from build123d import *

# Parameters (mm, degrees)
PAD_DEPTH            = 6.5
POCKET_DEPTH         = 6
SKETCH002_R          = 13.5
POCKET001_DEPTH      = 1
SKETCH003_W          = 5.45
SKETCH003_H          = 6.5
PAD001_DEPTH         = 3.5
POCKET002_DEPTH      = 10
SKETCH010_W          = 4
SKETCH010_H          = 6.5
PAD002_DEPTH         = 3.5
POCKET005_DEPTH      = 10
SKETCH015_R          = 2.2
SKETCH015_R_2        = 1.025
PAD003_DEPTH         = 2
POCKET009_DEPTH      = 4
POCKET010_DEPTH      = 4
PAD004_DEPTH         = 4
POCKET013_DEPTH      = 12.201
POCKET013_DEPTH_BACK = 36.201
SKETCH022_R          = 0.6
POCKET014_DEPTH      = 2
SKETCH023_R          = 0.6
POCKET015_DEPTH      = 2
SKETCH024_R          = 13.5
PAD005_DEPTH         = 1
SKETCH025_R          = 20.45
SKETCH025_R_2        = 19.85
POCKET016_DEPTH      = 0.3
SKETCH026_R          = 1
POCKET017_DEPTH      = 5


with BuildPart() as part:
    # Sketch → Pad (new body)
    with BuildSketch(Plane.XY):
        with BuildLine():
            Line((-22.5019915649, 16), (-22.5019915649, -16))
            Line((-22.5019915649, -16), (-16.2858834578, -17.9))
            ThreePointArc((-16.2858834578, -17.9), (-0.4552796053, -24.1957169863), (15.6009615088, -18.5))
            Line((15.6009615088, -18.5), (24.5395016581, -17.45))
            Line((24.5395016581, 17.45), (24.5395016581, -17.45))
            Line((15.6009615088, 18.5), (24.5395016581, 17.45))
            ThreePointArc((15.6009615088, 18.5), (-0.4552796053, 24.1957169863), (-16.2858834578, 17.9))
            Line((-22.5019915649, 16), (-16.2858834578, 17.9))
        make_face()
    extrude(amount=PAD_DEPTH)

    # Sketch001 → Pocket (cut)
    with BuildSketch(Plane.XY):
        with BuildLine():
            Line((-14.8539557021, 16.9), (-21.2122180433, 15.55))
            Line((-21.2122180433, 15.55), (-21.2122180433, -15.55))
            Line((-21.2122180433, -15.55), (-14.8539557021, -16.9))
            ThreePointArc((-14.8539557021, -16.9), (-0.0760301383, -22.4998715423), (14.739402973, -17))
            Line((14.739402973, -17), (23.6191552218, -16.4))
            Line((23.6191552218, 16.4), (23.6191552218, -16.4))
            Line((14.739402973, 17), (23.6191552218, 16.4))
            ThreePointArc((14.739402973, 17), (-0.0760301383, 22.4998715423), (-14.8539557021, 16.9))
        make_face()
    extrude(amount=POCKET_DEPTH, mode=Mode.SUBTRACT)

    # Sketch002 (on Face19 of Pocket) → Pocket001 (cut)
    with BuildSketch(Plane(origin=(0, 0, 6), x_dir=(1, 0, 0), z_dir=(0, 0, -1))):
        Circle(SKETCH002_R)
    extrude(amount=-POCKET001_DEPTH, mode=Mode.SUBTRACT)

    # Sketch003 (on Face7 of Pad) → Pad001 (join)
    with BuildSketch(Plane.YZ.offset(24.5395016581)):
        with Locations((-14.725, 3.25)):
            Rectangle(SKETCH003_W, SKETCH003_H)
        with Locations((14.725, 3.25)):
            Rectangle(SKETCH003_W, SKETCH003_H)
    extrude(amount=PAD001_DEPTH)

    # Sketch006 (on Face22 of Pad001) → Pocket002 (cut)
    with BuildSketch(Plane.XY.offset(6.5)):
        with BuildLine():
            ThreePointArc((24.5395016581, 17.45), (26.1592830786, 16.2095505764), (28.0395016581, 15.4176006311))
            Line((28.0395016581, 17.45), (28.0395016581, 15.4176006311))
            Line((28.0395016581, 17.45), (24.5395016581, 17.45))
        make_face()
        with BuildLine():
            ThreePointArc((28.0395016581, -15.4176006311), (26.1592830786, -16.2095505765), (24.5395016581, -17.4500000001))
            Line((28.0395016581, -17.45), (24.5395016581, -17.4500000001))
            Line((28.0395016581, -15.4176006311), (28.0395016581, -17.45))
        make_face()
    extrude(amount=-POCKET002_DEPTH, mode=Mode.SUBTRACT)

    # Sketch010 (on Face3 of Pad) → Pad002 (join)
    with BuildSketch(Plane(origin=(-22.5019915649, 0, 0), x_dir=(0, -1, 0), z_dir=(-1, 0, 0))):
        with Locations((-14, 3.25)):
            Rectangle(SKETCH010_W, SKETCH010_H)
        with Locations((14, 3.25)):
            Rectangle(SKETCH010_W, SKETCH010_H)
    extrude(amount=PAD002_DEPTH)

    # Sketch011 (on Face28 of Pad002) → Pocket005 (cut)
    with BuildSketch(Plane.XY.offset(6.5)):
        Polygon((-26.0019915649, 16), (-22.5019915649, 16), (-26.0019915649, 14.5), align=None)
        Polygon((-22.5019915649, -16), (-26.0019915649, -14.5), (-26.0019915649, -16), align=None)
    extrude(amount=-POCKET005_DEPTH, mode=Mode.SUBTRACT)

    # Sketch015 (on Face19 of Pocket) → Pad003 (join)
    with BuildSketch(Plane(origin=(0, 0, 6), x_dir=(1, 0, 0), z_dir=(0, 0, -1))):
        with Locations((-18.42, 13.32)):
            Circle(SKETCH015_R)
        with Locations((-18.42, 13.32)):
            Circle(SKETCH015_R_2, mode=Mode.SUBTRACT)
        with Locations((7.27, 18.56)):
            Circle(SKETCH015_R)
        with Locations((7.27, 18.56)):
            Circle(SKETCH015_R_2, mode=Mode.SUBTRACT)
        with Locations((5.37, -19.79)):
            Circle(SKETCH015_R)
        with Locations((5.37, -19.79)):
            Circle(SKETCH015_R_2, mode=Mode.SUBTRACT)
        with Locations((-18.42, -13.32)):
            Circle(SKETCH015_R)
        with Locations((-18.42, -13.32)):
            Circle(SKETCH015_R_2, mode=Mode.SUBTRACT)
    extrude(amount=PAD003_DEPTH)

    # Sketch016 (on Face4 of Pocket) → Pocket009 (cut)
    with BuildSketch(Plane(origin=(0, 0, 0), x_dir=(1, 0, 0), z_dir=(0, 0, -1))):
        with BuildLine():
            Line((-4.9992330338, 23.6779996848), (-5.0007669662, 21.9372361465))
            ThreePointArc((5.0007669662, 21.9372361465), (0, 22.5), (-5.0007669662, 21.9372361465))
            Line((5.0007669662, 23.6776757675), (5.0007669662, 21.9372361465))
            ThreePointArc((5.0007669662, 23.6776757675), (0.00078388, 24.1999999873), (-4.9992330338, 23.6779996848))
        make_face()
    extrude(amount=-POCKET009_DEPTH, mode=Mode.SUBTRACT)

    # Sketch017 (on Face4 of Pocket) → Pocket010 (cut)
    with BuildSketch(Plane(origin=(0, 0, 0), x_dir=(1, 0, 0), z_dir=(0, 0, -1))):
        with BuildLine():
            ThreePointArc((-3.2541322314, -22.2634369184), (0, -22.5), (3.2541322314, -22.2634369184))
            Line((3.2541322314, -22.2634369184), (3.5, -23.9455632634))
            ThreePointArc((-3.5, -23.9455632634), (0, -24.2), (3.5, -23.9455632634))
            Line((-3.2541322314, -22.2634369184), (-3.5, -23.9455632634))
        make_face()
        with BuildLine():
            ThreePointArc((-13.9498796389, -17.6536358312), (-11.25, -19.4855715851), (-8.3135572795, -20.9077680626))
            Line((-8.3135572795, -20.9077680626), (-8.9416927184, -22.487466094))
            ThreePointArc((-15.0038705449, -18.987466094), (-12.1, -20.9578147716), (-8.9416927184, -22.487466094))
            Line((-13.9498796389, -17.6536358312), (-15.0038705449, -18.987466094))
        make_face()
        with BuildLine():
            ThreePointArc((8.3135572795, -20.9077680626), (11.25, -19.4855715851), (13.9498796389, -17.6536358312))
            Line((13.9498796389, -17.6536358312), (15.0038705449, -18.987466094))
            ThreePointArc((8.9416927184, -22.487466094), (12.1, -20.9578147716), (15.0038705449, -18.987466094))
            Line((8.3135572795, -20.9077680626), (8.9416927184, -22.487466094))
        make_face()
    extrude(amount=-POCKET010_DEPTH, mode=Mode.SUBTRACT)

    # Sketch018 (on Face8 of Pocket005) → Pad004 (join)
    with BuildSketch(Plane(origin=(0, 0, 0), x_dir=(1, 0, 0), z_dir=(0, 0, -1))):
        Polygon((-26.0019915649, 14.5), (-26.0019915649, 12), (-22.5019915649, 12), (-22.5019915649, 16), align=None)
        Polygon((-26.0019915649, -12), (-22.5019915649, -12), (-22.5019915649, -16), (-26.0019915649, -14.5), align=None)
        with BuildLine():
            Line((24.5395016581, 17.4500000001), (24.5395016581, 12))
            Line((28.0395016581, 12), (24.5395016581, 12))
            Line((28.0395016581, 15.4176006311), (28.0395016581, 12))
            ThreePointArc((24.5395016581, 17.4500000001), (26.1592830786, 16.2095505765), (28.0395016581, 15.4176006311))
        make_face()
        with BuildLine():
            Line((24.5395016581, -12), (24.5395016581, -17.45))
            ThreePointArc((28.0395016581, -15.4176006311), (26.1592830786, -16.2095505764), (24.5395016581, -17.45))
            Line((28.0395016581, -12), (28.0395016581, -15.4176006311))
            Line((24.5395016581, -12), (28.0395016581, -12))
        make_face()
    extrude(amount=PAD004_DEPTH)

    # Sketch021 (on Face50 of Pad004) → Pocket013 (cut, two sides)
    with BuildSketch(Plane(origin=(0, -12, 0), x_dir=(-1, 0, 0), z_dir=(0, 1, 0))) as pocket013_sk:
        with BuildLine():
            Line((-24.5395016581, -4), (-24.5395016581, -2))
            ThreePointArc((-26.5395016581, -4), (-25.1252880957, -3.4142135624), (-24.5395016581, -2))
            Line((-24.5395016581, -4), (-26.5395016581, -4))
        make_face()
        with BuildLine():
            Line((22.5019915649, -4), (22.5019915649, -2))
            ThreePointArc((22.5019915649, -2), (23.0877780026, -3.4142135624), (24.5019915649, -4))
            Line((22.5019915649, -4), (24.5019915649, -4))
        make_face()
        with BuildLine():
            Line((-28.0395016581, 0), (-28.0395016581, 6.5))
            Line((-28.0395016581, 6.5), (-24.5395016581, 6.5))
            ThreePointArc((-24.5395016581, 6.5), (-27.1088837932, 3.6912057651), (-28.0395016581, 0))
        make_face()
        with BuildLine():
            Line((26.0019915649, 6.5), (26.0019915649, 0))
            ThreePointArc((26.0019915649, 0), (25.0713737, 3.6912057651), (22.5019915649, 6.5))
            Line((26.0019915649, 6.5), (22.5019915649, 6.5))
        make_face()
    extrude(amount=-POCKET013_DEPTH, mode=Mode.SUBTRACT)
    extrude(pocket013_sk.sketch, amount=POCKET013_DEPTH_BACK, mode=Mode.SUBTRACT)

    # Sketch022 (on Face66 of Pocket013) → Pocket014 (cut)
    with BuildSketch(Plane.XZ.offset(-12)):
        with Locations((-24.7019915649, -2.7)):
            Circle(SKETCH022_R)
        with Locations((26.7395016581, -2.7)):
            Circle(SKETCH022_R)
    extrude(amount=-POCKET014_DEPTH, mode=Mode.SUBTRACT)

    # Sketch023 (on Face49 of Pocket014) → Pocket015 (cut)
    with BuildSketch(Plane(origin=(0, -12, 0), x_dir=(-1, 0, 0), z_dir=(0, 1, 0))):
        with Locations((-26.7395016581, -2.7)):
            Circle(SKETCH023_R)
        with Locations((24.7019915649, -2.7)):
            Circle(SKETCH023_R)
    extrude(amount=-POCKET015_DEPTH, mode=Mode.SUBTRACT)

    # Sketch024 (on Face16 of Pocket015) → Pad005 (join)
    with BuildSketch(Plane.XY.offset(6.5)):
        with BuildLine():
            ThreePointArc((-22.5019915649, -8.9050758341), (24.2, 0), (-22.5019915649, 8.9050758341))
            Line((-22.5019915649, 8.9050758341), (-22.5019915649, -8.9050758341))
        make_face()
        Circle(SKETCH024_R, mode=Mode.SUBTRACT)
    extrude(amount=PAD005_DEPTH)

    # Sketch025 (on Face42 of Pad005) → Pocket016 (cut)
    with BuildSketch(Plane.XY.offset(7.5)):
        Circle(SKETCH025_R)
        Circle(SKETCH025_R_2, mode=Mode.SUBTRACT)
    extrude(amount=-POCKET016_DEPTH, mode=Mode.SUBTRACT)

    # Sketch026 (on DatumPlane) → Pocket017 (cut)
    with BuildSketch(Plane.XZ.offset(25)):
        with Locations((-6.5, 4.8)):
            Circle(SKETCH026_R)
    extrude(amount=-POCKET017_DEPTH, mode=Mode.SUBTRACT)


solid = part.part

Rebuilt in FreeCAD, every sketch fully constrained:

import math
import FreeCAD as App
import Part
import Sketcher
from FreeCAD import Vector


def add_polygon(sketch, points):
    """Adds a closed chain of lines whose ends are joined by coincident constraints."""
    first, n = sketch.GeometryCount, len(points)
    for a, b in zip(points, points[1:] + points[:1]):
        sketch.addGeometry(Part.LineSegment(App.Vector(*a, 0), App.Vector(*b, 0)), False)
    for i in range(n):
        sketch.addConstraint(Sketcher.Constraint("Coincident", first + i, 2, first + (i + 1) % n, 1))

doc = App.newDocument("Part")
body = doc.addObject("PartDesign::Body", "Body")

# Sketch on XY plane
sketch1 = body.newObject("Sketcher::SketchObject", "Sketch")
sketch1.AttachmentSupport = (doc.getObject("XY_Plane"), [""])
sketch1.MapMode = "FlatFace"
sketch1.addGeometry([
    Part.LineSegment(Vector(-22.501992, 16, 0), Vector(-22.501992, -16, 0)),  # 0
    Part.LineSegment(Vector(-22.501992, -16, 0), Vector(-16.285883, -17.9, 0)),  # 1
    Part.ArcOfCircle(Part.Circle(Vector(0, 0, 0), Vector(0, 0, 1), 24.2), math.radians(-132.296737), math.radians(-49.859225)),  # 2
    Part.LineSegment(Vector(15.600962, -18.5, 0), Vector(24.539502, -17.45, 0)),  # 3
    Part.LineSegment(Vector(24.539502, -17.45, 0), Vector(24.539502, 17.45, 0)),  # 4
    Part.LineSegment(Vector(24.539502, 17.45, 0), Vector(15.600962, 18.5, 0)),  # 5
    Part.ArcOfCircle(Part.Circle(Vector(0, 0, 0), Vector(0, 0, 1), 24.2), math.radians(49.859225), math.radians(132.296737)),  # 6
    Part.LineSegment(Vector(-16.285883, 17.9, 0), Vector(-22.501992, 16, 0)),  # 7
], False)
sketch1.addConstraint([
    Sketcher.Constraint("Coincident", 0, 2, 1, 1),
    Sketcher.Constraint("Coincident", 1, 2, 2, 1),
    Sketcher.Constraint("Coincident", 2, 2, 3, 1),
    Sketcher.Constraint("Coincident", 3, 2, 4, 1),
    Sketcher.Constraint("Coincident", 4, 2, 5, 1),
    Sketcher.Constraint("Coincident", 5, 2, 6, 1),
    Sketcher.Constraint("Coincident", 6, 2, 7, 1),
    Sketcher.Constraint("Coincident", 7, 2, 0, 1),
    Sketcher.Constraint("Vertical", 0),
    Sketcher.Constraint("Vertical", 4),
    Sketcher.Constraint("Coincident", 2, 3, -1, 1),
    Sketcher.Constraint("Coincident", 6, 3, -1, 1),
    Sketcher.Constraint("Equal", 2, 6),
    Sketcher.Constraint("Vertical", 2, 2, 5, 2),
    Sketcher.Constraint("Vertical", 1, 2, 6, 2),
    Sketcher.Constraint("Equal", 3, 5),
    Sketcher.Constraint("Equal", 1, 7),
    Sketcher.Constraint("Radius", 2, 24.2),
    Sketcher.Constraint("DistanceY", 0, 2, 0, 1, 32.0),
    Sketcher.Constraint("Distance", 3, 9.0),
    Sketcher.Constraint("DistanceY", 4, 1, 4, 2, 34.9),
    Sketcher.Constraint("DistanceY", 2, 2, 5, 2, 37.0),
    Sketcher.Constraint("Distance", 1, 6.5),
    Sketcher.Constraint("DistanceY", 1, 2, -1, 1, 17.9),
])
pad1 = body.newObject("PartDesign::Pad", "Pad")
pad1.Profile = sketch1
pad1.Length = 6.5

# Sketch on XY plane
sketch2 = body.newObject("Sketcher::SketchObject", "Sketch001")
sketch2.AttachmentSupport = (doc.getObject("XY_Plane"), [""])
sketch2.MapMode = "FlatFace"
sketch2.addGeometry([
    Part.LineSegment(Vector(-14.853956, 16.9, 0), Vector(-21.212218, 15.55, 0)),  # 0
    Part.LineSegment(Vector(-21.212218, 15.55, 0), Vector(-21.212218, -15.55, 0)),  # 1
    Part.LineSegment(Vector(-21.212218, -15.55, 0), Vector(-14.853956, -16.9, 0)),  # 2
    Part.ArcOfCircle(Part.Circle(Vector(0, 0, 0), Vector(0, 0, 1), 22.5), math.radians(-131.313282), math.radians(-49.073937)),  # 3
    Part.LineSegment(Vector(14.739403, -17, 0), Vector(23.619155, -16.4, 0)),  # 4
    Part.LineSegment(Vector(23.619155, -16.4, 0), Vector(23.619155, 16.4, 0)),  # 5
    Part.LineSegment(Vector(23.619155, 16.4, 0), Vector(14.739403, 17, 0)),  # 6
    Part.ArcOfCircle(Part.Circle(Vector(0, 0, 0), Vector(0, 0, 1), 22.5), math.radians(49.073937), math.radians(131.313282)),  # 7
], False)
sketch2.addConstraint([
    Sketcher.Constraint("Coincident", 0, 2, 1, 1),
    Sketcher.Constraint("Coincident", 1, 2, 2, 1),
    Sketcher.Constraint("Coincident", 2, 2, 3, 1),
    Sketcher.Constraint("Coincident", 3, 2, 4, 1),
    Sketcher.Constraint("Coincident", 4, 2, 5, 1),
    Sketcher.Constraint("Coincident", 5, 2, 6, 1),
    Sketcher.Constraint("Coincident", 6, 2, 7, 1),
    Sketcher.Constraint("Coincident", 7, 2, 0, 1),
    Sketcher.Constraint("Vertical", 1),
    Sketcher.Constraint("Vertical", 5),
    Sketcher.Constraint("Coincident", 3, 3, -1, 1),
    Sketcher.Constraint("Coincident", 7, 3, -1, 1),
    Sketcher.Constraint("Equal", 3, 7),
    Sketcher.Constraint("Vertical", 3, 2, 6, 2),
    Sketcher.Constraint("Vertical", 2, 2, 7, 2),
    Sketcher.Constraint("Equal", 0, 2),
    Sketcher.Constraint("Equal", 4, 6),
    Sketcher.Constraint("Radius", 3, 22.5),
    Sketcher.Constraint("DistanceY", 1, 2, 1, 1, 31.1),
    Sketcher.Constraint("DistanceY", 5, 1, 5, 2, 32.8),
    Sketcher.Constraint("DistanceY", 3, 2, -1, 1, 17.0),
    Sketcher.Constraint("Distance", 0, 6.5),
    Sketcher.Constraint("Distance", 4, 8.9),
    Sketcher.Constraint("DistanceY", 2, 2, -1, 1, 16.9),
])
pocket1 = body.newObject("PartDesign::Pocket", "Pocket")
pocket1.Profile = sketch2
pocket1.Length = 6
pocket1.Reversed = True

# Sketch on XY plane
sketch3 = body.newObject("Sketcher::SketchObject", "Sketch002")
sketch3.AttachmentSupport = (doc.getObject("XY_Plane"), [""])
sketch3.MapMode = "FlatFace"
sketch3.AttachmentOffset = App.Placement(Vector(0, 0, 6), App.Rotation())
sketch3.addGeometry(Part.Circle(Vector(0, 0, 0), Vector(0, 0, 1), 13.5), False)
sketch3.addConstraint([
    Sketcher.Constraint("Coincident", 0, 3, -1, 1),
    Sketcher.Constraint("Diameter", 0, 27.0),
])
pocket2 = body.newObject("PartDesign::Pocket", "Pocket001")
pocket2.Profile = sketch3
pocket2.Length = 1
pocket2.Reversed = True

# Sketch on YZ plane
sketch4 = body.newObject("Sketcher::SketchObject", "Sketch003")
sketch4.AttachmentSupport = (doc.getObject("YZ_Plane"), [""])
sketch4.MapMode = "FlatFace"
sketch4.AttachmentOffset = App.Placement(Vector(0, 0, 24.539502), App.Rotation())
add_polygon(sketch4, [(-17.45, 6.5), (-17.45, 0), (-12, 0), (-12, 6.5)])  # lines 0-3
add_polygon(sketch4, [(12, 6.5), (12, 0), (17.45, 0), (17.45, 6.5)])  # lines 4-7
sketch4.addConstraint([
    Sketcher.Constraint("Vertical", 0),
    Sketcher.Constraint("Horizontal", 1),
    Sketcher.Constraint("Vertical", 2),
    Sketcher.Constraint("Horizontal", 3),
    Sketcher.Constraint("Vertical", 4),
    Sketcher.Constraint("Horizontal", 5),
    Sketcher.Constraint("Vertical", 6),
    Sketcher.Constraint("Horizontal", 7),
    Sketcher.Constraint("Symmetric", 1, 2, 4, 2, -1, 1),
    Sketcher.Constraint("Symmetric", 0, 2, 5, 2, -2),
    Sketcher.Constraint("Horizontal", 3, 2, 6, 2),
    Sketcher.Constraint("DistanceY", 0, 2, 0, 1, 6.5),
    Sketcher.Constraint("DistanceX", 1, 2, -1, 1, 12.0),
    Sketcher.Constraint("DistanceX", 1, 1, 1, 2, 5.45),
])
pad2 = body.newObject("PartDesign::Pad", "Pad001")
pad2.Profile = sketch4
pad2.Length = 3.5

# Sketch on XY plane
sketch5 = body.newObject("Sketcher::SketchObject", "Sketch004")
sketch5.AttachmentSupport = (doc.getObject("XY_Plane"), [""])
sketch5.MapMode = "FlatFace"
sketch5.AttachmentOffset = App.Placement(Vector(0, 0, 6.5), App.Rotation())
sketch5.addGeometry([
    Part.ArcOfCircle(Part.Circle(Vector(30.189502, 23.15, 0), Vector(0, 0, 1), 8.02574), math.radians(-134.747597), math.radians(-105.538634)),  # 0
    Part.LineSegment(Vector(28.039502, 15.417601, 0), Vector(28.039502, 17.45, 0)),  # 1
    Part.LineSegment(Vector(28.039502, 17.45, 0), Vector(24.539502, 17.45, 0)),  # 2
    Part.ArcOfCircle(Part.Circle(Vector(30.189502, -23.15, 0), Vector(0, 0, 1), 8.02574), math.radians(105.538634), math.radians(134.747597)),  # 3
    Part.LineSegment(Vector(24.539502, -17.45, 0), Vector(28.039502, -17.45, 0)),  # 4
    Part.LineSegment(Vector(28.039502, -17.45, 0), Vector(28.039502, -15.417601, 0)),  # 5
], False)
sketch5.addConstraint([
    Sketcher.Constraint("Coincident", 0, 2, 1, 1),
    Sketcher.Constraint("Coincident", 1, 2, 2, 1),
    Sketcher.Constraint("Coincident", 2, 2, 0, 1),
    Sketcher.Constraint("Coincident", 3, 2, 4, 1),
    Sketcher.Constraint("Coincident", 4, 2, 5, 1),
    Sketcher.Constraint("Coincident", 5, 2, 3, 1),
    Sketcher.Constraint("Vertical", 1),
    Sketcher.Constraint("Horizontal", 2),
    Sketcher.Constraint("Horizontal", 4),
    Sketcher.Constraint("Vertical", 5),
    Sketcher.Constraint("Equal", 0, 3),
    Sketcher.Constraint("Symmetric", 0, 3, 3, 3, -1),
    Sketcher.Constraint("Symmetric", 1, 2, 4, 2, -1),
    Sketcher.Constraint("DistanceX", 2, 2, 2, 1, 3.5),
    Sketcher.Constraint("DistanceY", 3, 3, 0, 3, 46.3),
    Sketcher.Constraint("DistanceY", 1, 2, 0, 3, 5.7),
    Sketcher.Constraint("Radius", 0, 8.02574),
    Sketcher.Constraint("DistanceX", -1, 1, 0, 3, 30.189502),
])
pocket3 = body.newObject("PartDesign::Pocket", "Pocket002")
pocket3.Profile = sketch5
pocket3.Length = 10

# Sketch on YZ plane
sketch6 = body.newObject("Sketcher::SketchObject", "Sketch005")
sketch6.AttachmentSupport = (doc.getObject("YZ_Plane"), [""])
sketch6.MapMode = "FlatFace"
sketch6.AttachmentOffset = App.Placement(Vector(0, 0, -22.501992), App.Rotation())
add_polygon(sketch6, [(16, 6.5), (16, 0), (12, 0), (12, 6.5)])  # lines 0-3
add_polygon(sketch6, [(-12, 6.5), (-12, 0), (-16, 0), (-16, 6.5)])  # lines 4-7
sketch6.addConstraint([
    Sketcher.Constraint("Vertical", 0),
    Sketcher.Constraint("Horizontal", 1),
    Sketcher.Constraint("Vertical", 2),
    Sketcher.Constraint("Horizontal", 3),
    Sketcher.Constraint("Vertical", 4),
    Sketcher.Constraint("Horizontal", 5),
    Sketcher.Constraint("Vertical", 6),
    Sketcher.Constraint("Horizontal", 7),
    Sketcher.Constraint("Symmetric", 1, 2, 4, 2, -1, 1),
    Sketcher.Constraint("Symmetric", 0, 2, 5, 2, -2),
    Sketcher.Constraint("Horizontal", 3, 2, 6, 2),
    Sketcher.Constraint("DistanceX", 1, 2, 1, 1, 4.0),
    Sketcher.Constraint("DistanceY", 0, 2, 0, 1, 6.5),
    Sketcher.Constraint("DistanceX", -1, 1, 0, 2, 16.0),
])
pad3 = body.newObject("PartDesign::Pad", "Pad002")
pad3.Profile = sketch6
pad3.Length = 3.5
pad3.Reversed = True

# Sketch on XY plane
sketch7 = body.newObject("Sketcher::SketchObject", "Sketch006")
sketch7.AttachmentSupport = (doc.getObject("XY_Plane"), [""])
sketch7.MapMode = "FlatFace"
sketch7.AttachmentOffset = App.Placement(Vector(0, 0, 6.5), App.Rotation())
add_polygon(sketch7, [(-22.501992, 16), (-26.001992, 16), (-26.001992, 14.5)])  # lines 0-2
add_polygon(sketch7, [(-22.501992, -16), (-26.001992, -14.5), (-26.001992, -16)])  # lines 3-5
sketch7.addConstraint([
    Sketcher.Constraint("Horizontal", 0),
    Sketcher.Constraint("Vertical", 1),
    Sketcher.Constraint("Vertical", 4),
    Sketcher.Constraint("Horizontal", 5),
    Sketcher.Constraint("Symmetric", 1, 2, 3, 2, -1),
    Sketcher.Constraint("Symmetric", 2, 2, 5, 2, -1),
    Sketcher.Constraint("DistanceX", 0, 2, 0, 1, 3.5),
    Sketcher.Constraint("DistanceY", 1, 2, 1, 1, 1.5),
    Sketcher.Constraint("DistanceY", -1, 1, 0, 2, 16.0),
    Sketcher.Constraint("DistanceX", 0, 2, -1, 1, 26.001992),
])
pocket4 = body.newObject("PartDesign::Pocket", "Pocket003")
pocket4.Profile = sketch7
pocket4.Length = 10

# Sketch on XY plane
sketch8 = body.newObject("Sketcher::SketchObject", "Sketch007")
sketch8.AttachmentSupport = (doc.getObject("XY_Plane"), [""])
sketch8.MapMode = "FlatFace"
sketch8.AttachmentOffset = App.Placement(Vector(0, 0, 6), App.Rotation())
sketch8.addGeometry([
    Part.Circle(Vector(-18.42, -13.32, 0), Vector(0, 0, 1), 2.2),  # 0
    Part.Circle(Vector(-18.42, -13.32, 0), Vector(0, 0, 1), 1.025),  # 1
    Part.Circle(Vector(7.27, -18.56, 0), Vector(0, 0, 1), 2.2),  # 2
    Part.Circle(Vector(7.27, -18.56, 0), Vector(0, 0, 1), 1.025),  # 3
    Part.Circle(Vector(5.37, 19.79, 0), Vector(0, 0, 1), 2.2),  # 4
    Part.Circle(Vector(5.37, 19.79, 0), Vector(0, 0, 1), 1.025),  # 5
    Part.Circle(Vector(-18.42, 13.32, 0), Vector(0, 0, 1), 2.2),  # 6
    Part.Circle(Vector(-18.42, 13.32, 0), Vector(0, 0, 1), 1.025),  # 7
], False)
sketch8.addConstraint([
    Sketcher.Constraint("Coincident", 1, 3, 0, 3),
    Sketcher.Constraint("Coincident", 3, 3, 2, 3),
    Sketcher.Constraint("Coincident", 5, 3, 4, 3),
    Sketcher.Constraint("Coincident", 7, 3, 6, 3),
    Sketcher.Constraint("Equal", 0, 2),
    Sketcher.Constraint("Equal", 1, 3),
    Sketcher.Constraint("Equal", 2, 4),
    Sketcher.Constraint("Equal", 3, 5),
    Sketcher.Constraint("Equal", 4, 6),
    Sketcher.Constraint("Equal", 5, 7),
    Sketcher.Constraint("Symmetric", 0, 3, 6, 3, -1),
    Sketcher.Constraint("Diameter", 0, 4.4),
    Sketcher.Constraint("Diameter", 1, 2.05),
    Sketcher.Constraint("DistanceX", 4, 3, 2, 3, 1.9),
    Sketcher.Constraint("DistanceX", 0, 3, -1, 1, 18.42),
    Sketcher.Constraint("DistanceY", 0, 3, -1, 1, 13.32),
    Sketcher.Constraint("DistanceX", -1, 1, 2, 3, 7.27),
    Sketcher.Constraint("DistanceY", 2, 3, -1, 1, 18.56),
    Sketcher.Constraint("DistanceY", -1, 1, 4, 3, 19.79),
])
pad4 = body.newObject("PartDesign::Pad", "Pad003")
pad4.Profile = sketch8
pad4.Length = 2
pad4.Reversed = True

# Sketch on XY plane
sketch9 = body.newObject("Sketcher::SketchObject", "Sketch008")
sketch9.AttachmentSupport = (doc.getObject("XY_Plane"), [""])
sketch9.MapMode = "FlatFace"
sketch9.addGeometry([
    Part.LineSegment(Vector(-4.999233, -23.678, 0), Vector(-5.000767, -21.937236, 0)),
    Part.ArcOfCircle(Part.Circle(Vector(0, 0, 0), Vector(0, 0, 1), 22.5), math.radians(-102.841592), math.radians(-77.158408)),
    Part.LineSegment(Vector(5.000767, -21.937236, 0), Vector(5.000767, -23.677676, 0)),
    Part.ArcOfCircle(Part.Circle(Vector(0, 0, 0), Vector(0, 0, 1), 24.2), math.radians(-101.921999), math.radians(-78.074289)),
], False)
sketch9.addConstraint([
    Sketcher.Constraint("Coincident", 0, 2, 1, 1),
    Sketcher.Constraint("Coincident", 1, 2, 2, 1),
    Sketcher.Constraint("Coincident", 2, 2, 3, 2),
    Sketcher.Constraint("Coincident", 3, 1, 0, 1),
    Sketcher.Constraint("Vertical", 2),
    Sketcher.Constraint("Coincident", 1, 3, -1, 1),
    Sketcher.Constraint("Coincident", 3, 3, -1, 1),
    Sketcher.Constraint("Horizontal", 0, 2, 1, 2),
    Sketcher.Constraint("Radius", 1, 22.5),
    Sketcher.Constraint("Radius", 3, 24.2),
    Sketcher.Constraint("DistanceX", 3, 1, 2, 2, 10.0),
    Sketcher.Constraint("DistanceY", 3, 1, -1, 1, 23.678),
])
pocket5 = body.newObject("PartDesign::Pocket", "Pocket004")
pocket5.Profile = sketch9
pocket5.Length = 4
pocket5.Reversed = True

# Sketch on XY plane
sketch10 = body.newObject("Sketcher::SketchObject", "Sketch009")
sketch10.AttachmentSupport = (doc.getObject("XY_Plane"), [""])
sketch10.MapMode = "FlatFace"
sketch10.addGeometry([
    Part.ArcOfCircle(Part.Circle(Vector(0, 0, 0), Vector(0, 0, 1), 22.5), math.radians(81.684256), math.radians(98.315744)),  # 0
    Part.LineSegment(Vector(-3.254132, 22.263437, 0), Vector(-3.5, 23.945563, 0)),  # 1
    Part.ArcOfCircle(Part.Circle(Vector(0, 0, 0), Vector(0, 0, 1), 24.2), math.radians(81.684256), math.radians(98.315744)),  # 2
    Part.LineSegment(Vector(3.5, 23.945563, 0), Vector(3.254132, 22.263437, 0)),  # 3
    Part.ArcOfCircle(Part.Circle(Vector(0, 0, 0), Vector(0, 0, 1), 22.5), math.radians(111.684256), math.radians(128.315744)),  # 4
    Part.LineSegment(Vector(-13.94988, 17.653636, 0), Vector(-15.003871, 18.987466, 0)),  # 5
    Part.ArcOfCircle(Part.Circle(Vector(0, 0, 0), Vector(0, 0, 1), 24.2), math.radians(111.684256), math.radians(128.315744)),  # 6
    Part.LineSegment(Vector(-8.941693, 22.487466, 0), Vector(-8.313557, 20.907768, 0)),  # 7
    Part.ArcOfCircle(Part.Circle(Vector(0, 0, 0), Vector(0, 0, 1), 22.5), math.radians(51.684256), math.radians(68.315744)),  # 8
    Part.LineSegment(Vector(8.313557, 20.907768, 0), Vector(8.941693, 22.487466, 0)),  # 9
    Part.ArcOfCircle(Part.Circle(Vector(0, 0, 0), Vector(0, 0, 1), 24.2), math.radians(51.684256), math.radians(68.315744)),  # 10
    Part.LineSegment(Vector(15.003871, 18.987466, 0), Vector(13.94988, 17.653636, 0)),  # 11
], False)
sketch10.addConstraint([
    Sketcher.Constraint("Coincident", 0, 2, 1, 1),
    Sketcher.Constraint("Coincident", 1, 2, 2, 2),
    Sketcher.Constraint("Coincident", 2, 1, 3, 1),
    Sketcher.Constraint("Coincident", 3, 2, 0, 1),
    Sketcher.Constraint("Coincident", 4, 2, 5, 1),
    Sketcher.Constraint("Coincident", 5, 2, 6, 2),
    Sketcher.Constraint("Coincident", 6, 1, 7, 1),
    Sketcher.Constraint("Coincident", 7, 2, 4, 1),
    Sketcher.Constraint("Coincident", 8, 2, 9, 1),
    Sketcher.Constraint("Coincident", 9, 2, 10, 2),
    Sketcher.Constraint("Coincident", 10, 1, 11, 1),
    Sketcher.Constraint("Coincident", 11, 2, 8, 1),
    Sketcher.Constraint("Coincident", 0, 3, -1, 1),
    Sketcher.Constraint("Coincident", 2, 3, -1, 1),
    Sketcher.Constraint("Coincident", 4, 3, -1, 1),
    Sketcher.Constraint("Coincident", 6, 3, -1, 1),
    Sketcher.Constraint("Coincident", 8, 3, -1, 1),
    Sketcher.Constraint("Coincident", 10, 3, -1, 1),
    Sketcher.Constraint("Equal", 0, 4),
    Sketcher.Constraint("Equal", 2, 6),
    Sketcher.Constraint("Equal", 4, 8),
    Sketcher.Constraint("Equal", 6, 10),
    Sketcher.Constraint("Horizontal", 1, 2, 2, 1),
    Sketcher.Constraint("Horizontal", 0, 2, 3, 2),
    Sketcher.Constraint("Horizontal", 7, 2, 8, 2),
    Sketcher.Constraint("Horizontal", 6, 1, 9, 2),
    Sketcher.Constraint("Horizontal", 5, 2, 10, 1),
    Sketcher.Constraint("Horizontal", 4, 2, 11, 2),
    Sketcher.Constraint("Radius", 0, 22.5),
    Sketcher.Constraint("Radius", 2, 24.2),
    Sketcher.Constraint("DistanceX", 1, 2, 2, 1, 7.0),
    Sketcher.Constraint("DistanceY", 5, 2, 6, 1, 3.5),
    Sketcher.Constraint("DistanceY", 4, 2, 0, 2, 4.609801),
    Sketcher.Constraint("DistanceY", 7, 2, 6, 1, 1.579698),
    Sketcher.Constraint("DistanceX", 4, 2, -1, 1, 13.94988),
    Sketcher.Constraint("DistanceX", 5, 2, -1, 1, 15.003871),
])
pocket6 = body.newObject("PartDesign::Pocket", "Pocket005")
pocket6.Profile = sketch10
pocket6.Length = 4
pocket6.Reversed = True

# Sketch on XY plane
sketch11 = body.newObject("Sketcher::SketchObject", "Sketch010")
sketch11.AttachmentSupport = (doc.getObject("XY_Plane"), [""])
sketch11.MapMode = "FlatFace"
add_polygon(sketch11, [(-26.001992, -14.5), (-26.001992, -12), (-22.501992, -12), (-22.501992, -16)])  # lines 0-3
add_polygon(sketch11, [(-22.501992, 12), (-26.001992, 12), (-26.001992, 14.5), (-22.501992, 16)])  # lines 4-7
sketch11.addGeometry(Part.LineSegment(Vector(24.539502, -17.45, 0), Vector(24.539502, -12, 0)), False)  # 8
sketch11.addGeometry(Part.LineSegment(Vector(24.539502, -12, 0), Vector(28.039502, -12, 0)), False)  # 9
sketch11.addGeometry(Part.LineSegment(Vector(28.039502, -12, 0), Vector(28.039502, -15.417601, 0)), False)  # 10
sketch11.addGeometry(Part.ArcOfCircle(Part.Circle(Vector(30.189502, -23.15, 0), Vector(0, 0, 1), 8.02574), math.radians(105.538634), math.radians(134.747597)), False)  # 11
sketch11.addGeometry(Part.LineSegment(Vector(24.539502, 12, 0), Vector(24.539502, 17.45, 0)), False)  # 12
sketch11.addGeometry(Part.ArcOfCircle(Part.Circle(Vector(30.189502, 23.15, 0), Vector(0, 0, 1), 8.02574), math.radians(-134.747597), math.radians(-105.538634)), False)  # 13
sketch11.addGeometry(Part.LineSegment(Vector(28.039502, 15.417601, 0), Vector(28.039502, 12, 0)), False)  # 14
sketch11.addGeometry(Part.LineSegment(Vector(28.039502, 12, 0), Vector(24.539502, 12, 0)), False)  # 15
sketch11.addConstraint([
    Sketcher.Constraint("Coincident", 8, 2, 9, 1),
    Sketcher.Constraint("Coincident", 9, 2, 10, 1),
    Sketcher.Constraint("Coincident", 10, 2, 11, 1),
    Sketcher.Constraint("Coincident", 11, 2, 8, 1),
    Sketcher.Constraint("Coincident", 12, 2, 13, 1),
    Sketcher.Constraint("Coincident", 13, 2, 14, 1),
    Sketcher.Constraint("Coincident", 14, 2, 15, 1),
    Sketcher.Constraint("Coincident", 15, 2, 12, 1),
    Sketcher.Constraint("Vertical", 0),
    Sketcher.Constraint("Horizontal", 1),
    Sketcher.Constraint("Vertical", 2),
    Sketcher.Constraint("Horizontal", 4),
    Sketcher.Constraint("Vertical", 5),
    Sketcher.Constraint("Vertical", 7),
    Sketcher.Constraint("Vertical", 8),
    Sketcher.Constraint("Horizontal", 9),
    Sketcher.Constraint("Vertical", 10),
    Sketcher.Constraint("Vertical", 12),
    Sketcher.Constraint("Vertical", 14),
    Sketcher.Constraint("Horizontal", 15),
    Sketcher.Constraint("Equal", 11, 13),
    Sketcher.Constraint("Symmetric", 11, 3, 13, 3, -1),
    Sketcher.Constraint("Symmetric", 0, 2, 4, 2, -1),
    Sketcher.Constraint("Symmetric", 2, 2, 6, 2, -1),
    Sketcher.Constraint("Symmetric", 9, 2, 14, 2, -1),
    Sketcher.Constraint("Horizontal", 1, 2, 8, 2),
    Sketcher.Constraint("Vertical", 11, 2, 12, 2),
    Sketcher.Constraint("Equal", 4, 9),
    Sketcher.Constraint("Equal", 0, 5),
    Sketcher.Constraint("DistanceY", 2, 2, 2, 1, 4.0),
    Sketcher.Constraint("DistanceX", 1, 1, 1, 2, 3.5),
    Sketcher.Constraint("DistanceY", 0, 1, 0, 2, 2.5),
    Sketcher.Constraint("DistanceY", 0, 2, -1, 1, 12.0),
    Sketcher.Constraint("DistanceY", 8, 1, 8, 2, 5.45),
    Sketcher.Constraint("DistanceY", 11, 3, 13, 3, 46.3),
    Sketcher.Constraint("Radius", 11, 8.02574),
    Sketcher.Constraint("DistanceX", -1, 1, 11, 3, 30.189502),
    Sketcher.Constraint("DistanceX", 0, 2, -1, 1, 26.001992),
])
pad5 = body.newObject("PartDesign::Pad", "Pad004")
pad5.Profile = sketch11
pad5.Length = 4
pad5.Reversed = True

# Sketch on XZ plane
sketch12 = body.newObject("Sketcher::SketchObject", "Sketch011")
sketch12.AttachmentSupport = (doc.getObject("XZ_Plane"), [""])
sketch12.MapMode = "FlatFace"
sketch12.AttachmentOffset = App.Placement(Vector(0, 0, 12), App.Rotation())
sketch12.addGeometry([
    Part.LineSegment(Vector(24.539502, -4, 0), Vector(24.539502, -2, 0)),  # 0
    Part.ArcOfCircle(Part.Circle(Vector(26.539502, -2, 0), Vector(0, 0, 1), 2), math.radians(180), math.radians(270)),  # 1
    Part.LineSegment(Vector(26.539502, -4, 0), Vector(24.539502, -4, 0)),  # 2
    Part.LineSegment(Vector(-22.501992, -2, 0), Vector(-22.501992, -4, 0)),  # 3
    Part.LineSegment(Vector(-22.501992, -4, 0), Vector(-24.501992, -4, 0)),  # 4
    Part.ArcOfCircle(Part.Circle(Vector(-24.501992, -2, 0), Vector(0, 0, 1), 2), math.radians(-90), math.radians(0)),  # 5
    Part.LineSegment(Vector(28.039502, 6.5, 0), Vector(28.039502, 0, 0)),  # 6
    Part.ArcOfCircle(Part.Circle(Vector(20.253787, 0, 0), Vector(0, 0, 1), 7.785714), math.radians(0), math.radians(56.601512)),  # 7
    Part.LineSegment(Vector(24.539502, 6.5, 0), Vector(28.039502, 6.5, 0)),  # 8
    Part.LineSegment(Vector(-26.001992, 0, 0), Vector(-26.001992, 6.5, 0)),  # 9
    Part.LineSegment(Vector(-26.001992, 6.5, 0), Vector(-22.501992, 6.5, 0)),  # 10
    Part.ArcOfCircle(Part.Circle(Vector(-18.216277, 0, 0), Vector(0, 0, 1), 7.785714), math.radians(123.398488), math.radians(180)),  # 11
], False)
sketch12.addConstraint([
    Sketcher.Constraint("Tangent", 0, 2, 1, 1),
    Sketcher.Constraint("Tangent", 1, 2, 2, 1),
    Sketcher.Constraint("Coincident", 2, 2, 0, 1),
    Sketcher.Constraint("Coincident", 3, 2, 4, 1),
    Sketcher.Constraint("Tangent", 4, 2, 5, 1),
    Sketcher.Constraint("Tangent", 5, 2, 3, 1),
    Sketcher.Constraint("Tangent", 6, 2, 7, 1),
    Sketcher.Constraint("Coincident", 7, 2, 8, 1),
    Sketcher.Constraint("Coincident", 8, 2, 6, 1),
    Sketcher.Constraint("Coincident", 9, 2, 10, 1),
    Sketcher.Constraint("Coincident", 10, 2, 11, 1),
    Sketcher.Constraint("Tangent", 11, 2, 9, 1),
    Sketcher.Constraint("Vertical", 0),
    Sketcher.Constraint("Horizontal", 2),
    Sketcher.Constraint("Vertical", 3),
    Sketcher.Constraint("Horizontal", 4),
    Sketcher.Constraint("Vertical", 6),
    Sketcher.Constraint("Horizontal", 8),
    Sketcher.Constraint("Vertical", 9),
    Sketcher.Constraint("Horizontal", 10),
    Sketcher.Constraint("Equal", 1, 5),
    Sketcher.Constraint("Equal", 7, 11),
    Sketcher.Constraint("PointOnObject", 7, 3, -1),
    Sketcher.Constraint("PointOnObject", 11, 3, -1),
    Sketcher.Constraint("Horizontal", 1, 3, 5, 3),
    Sketcher.Constraint("Horizontal", 8, 2, 9, 2),
    Sketcher.Constraint("Vertical", 2, 2, 7, 2),
    Sketcher.Constraint("Vertical", 5, 2, 10, 2),
    Sketcher.Constraint("Radius", 1, 2.0),
    Sketcher.Constraint("DistanceX", 8, 1, 8, 2, 3.5),
    Sketcher.Constraint("DistanceY", 6, 2, 6, 1, 6.5),
    Sketcher.Constraint("DistanceY", 1, 3, -1, 1, 2.0),
    Sketcher.Constraint("DistanceX", -1, 1, 1, 3, 26.539502),
    Sketcher.Constraint("DistanceX", 5, 3, -1, 1, 24.501992),
])
pocket7 = body.newObject("PartDesign::Pocket", "Pocket006")
pocket7.Profile = sketch12
pocket7.Type = "ThroughAll"
pocket7.Midplane = True

# Sketch on XZ plane
sketch13 = body.newObject("Sketcher::SketchObject", "Sketch012")
sketch13.AttachmentSupport = (doc.getObject("XZ_Plane"), [""])
sketch13.MapMode = "FlatFace"
sketch13.AttachmentOffset = App.Placement(Vector(0, 0, -12), App.Rotation())
sketch13.addGeometry([
    Part.Circle(Vector(-24.701992, -2.7, 0), Vector(0, 0, 1), 0.6),
    Part.Circle(Vector(26.739502, -2.7, 0), Vector(0, 0, 1), 0.6),
], False)
sketch13.addConstraint([
    Sketcher.Constraint("Equal", 0, 1),
    Sketcher.Constraint("Horizontal", 0, 3, 1, 3),
    Sketcher.Constraint("Diameter", 0, 1.2),
    Sketcher.Constraint("DistanceY", 0, 3, -1, 1, 2.7),
    Sketcher.Constraint("DistanceX", -1, 1, 1, 3, 26.739502),
    Sketcher.Constraint("DistanceX", 0, 3, -1, 1, 24.701992),
])
pocket8 = body.newObject("PartDesign::Pocket", "Pocket007")
pocket8.Profile = sketch13
pocket8.Length = 2

# Sketch on XZ plane
sketch14 = body.newObject("Sketcher::SketchObject", "Sketch013")
sketch14.AttachmentSupport = (doc.getObject("XZ_Plane"), [""])
sketch14.MapMode = "FlatFace"
sketch14.AttachmentOffset = App.Placement(Vector(0, 0, 12), App.Rotation())
sketch14.addGeometry([
    Part.Circle(Vector(26.739502, -2.7, 0), Vector(0, 0, 1), 0.6),
    Part.Circle(Vector(-24.701992, -2.7, 0), Vector(0, 0, 1), 0.6),
], False)
sketch14.addConstraint([
    Sketcher.Constraint("Equal", 0, 1),
    Sketcher.Constraint("Horizontal", 0, 3, 1, 3),
    Sketcher.Constraint("Diameter", 0, 1.2),
    Sketcher.Constraint("DistanceY", 0, 3, -1, 1, 2.7),
    Sketcher.Constraint("DistanceX", -1, 1, 0, 3, 26.739502),
    Sketcher.Constraint("DistanceX", 1, 3, -1, 1, 24.701992),
])
pocket9 = body.newObject("PartDesign::Pocket", "Pocket008")
pocket9.Profile = sketch14
pocket9.Length = 2
pocket9.Reversed = True

# Sketch on XY plane
sketch15 = body.newObject("Sketcher::SketchObject", "Sketch014")
sketch15.AttachmentSupport = (doc.getObject("XY_Plane"), [""])
sketch15.MapMode = "FlatFace"
sketch15.AttachmentOffset = App.Placement(Vector(0, 0, 6.5), App.Rotation())
sketch15.addGeometry([
    Part.ArcOfCircle(Part.Circle(Vector(0, 0, 0), Vector(0, 0, 1), 24.2), math.radians(-158.40901), math.radians(158.40901)),
    Part.LineSegment(Vector(-22.501992, 8.905076, 0), Vector(-22.501992, -8.905076, 0)),
    Part.Circle(Vector(0, 0, 0), Vector(0, 0, 1), 13.5),
], False)
sketch15.addConstraint([
    Sketcher.Constraint("Coincident", 0, 1, 1, 2),
    Sketcher.Constraint("Coincident", 1, 1, 0, 2),
    Sketcher.Constraint("Vertical", 1),
    Sketcher.Constraint("Coincident", 0, 3, -1, 1),
    Sketcher.Constraint("Coincident", 2, 3, -1, 1),
    Sketcher.Constraint("Diameter", 2, 27.0),
    Sketcher.Constraint("Radius", 0, 24.2),
    Sketcher.Constraint("DistanceY", 1, 2, 1, 1, 17.810152),
])
pad6 = body.newObject("PartDesign::Pad", "Pad005")
pad6.Profile = sketch15
pad6.Length = 1

# Sketch on XY plane
sketch16 = body.newObject("Sketcher::SketchObject", "Sketch015")
sketch16.AttachmentSupport = (doc.getObject("XY_Plane"), [""])
sketch16.MapMode = "FlatFace"
sketch16.AttachmentOffset = App.Placement(Vector(0, 0, 7.5), App.Rotation())
sketch16.addGeometry([
    Part.Circle(Vector(0, 0, 0), Vector(0, 0, 1), 20.45),
    Part.Circle(Vector(0, 0, 0), Vector(0, 0, 1), 19.85),
], False)
sketch16.addConstraint([
    Sketcher.Constraint("Coincident", 0, 3, -1, 1),
    Sketcher.Constraint("Coincident", 1, 3, -1, 1),
    Sketcher.Constraint("Diameter", 0, 40.9),
    Sketcher.Constraint("Diameter", 1, 39.7),
])
pocket10 = body.newObject("PartDesign::Pocket", "Pocket009")
pocket10.Profile = sketch16
pocket10.Length = 0.3

# Sketch on XZ plane
sketch17 = body.newObject("Sketcher::SketchObject", "Sketch016")
sketch17.AttachmentSupport = (doc.getObject("XZ_Plane"), [""])
sketch17.MapMode = "FlatFace"
sketch17.AttachmentOffset = App.Placement(Vector(0, 0, 25), App.Rotation())
sketch17.addGeometry(Part.Circle(Vector(-6.5, 4.8, 0), Vector(0, 0, 1), 1), False)
sketch17.addConstraint([
    Sketcher.Constraint("Diameter", 0, 2.0),
    Sketcher.Constraint("DistanceX", 0, 3, -1, 1, 6.5),
    Sketcher.Constraint("DistanceY", -1, 1, 0, 3, 4.8),
])
pocket11 = body.newObject("PartDesign::Pocket", "Pocket010")
pocket11.Profile = sketch17
pocket11.Length = 5

doc.recompute()
